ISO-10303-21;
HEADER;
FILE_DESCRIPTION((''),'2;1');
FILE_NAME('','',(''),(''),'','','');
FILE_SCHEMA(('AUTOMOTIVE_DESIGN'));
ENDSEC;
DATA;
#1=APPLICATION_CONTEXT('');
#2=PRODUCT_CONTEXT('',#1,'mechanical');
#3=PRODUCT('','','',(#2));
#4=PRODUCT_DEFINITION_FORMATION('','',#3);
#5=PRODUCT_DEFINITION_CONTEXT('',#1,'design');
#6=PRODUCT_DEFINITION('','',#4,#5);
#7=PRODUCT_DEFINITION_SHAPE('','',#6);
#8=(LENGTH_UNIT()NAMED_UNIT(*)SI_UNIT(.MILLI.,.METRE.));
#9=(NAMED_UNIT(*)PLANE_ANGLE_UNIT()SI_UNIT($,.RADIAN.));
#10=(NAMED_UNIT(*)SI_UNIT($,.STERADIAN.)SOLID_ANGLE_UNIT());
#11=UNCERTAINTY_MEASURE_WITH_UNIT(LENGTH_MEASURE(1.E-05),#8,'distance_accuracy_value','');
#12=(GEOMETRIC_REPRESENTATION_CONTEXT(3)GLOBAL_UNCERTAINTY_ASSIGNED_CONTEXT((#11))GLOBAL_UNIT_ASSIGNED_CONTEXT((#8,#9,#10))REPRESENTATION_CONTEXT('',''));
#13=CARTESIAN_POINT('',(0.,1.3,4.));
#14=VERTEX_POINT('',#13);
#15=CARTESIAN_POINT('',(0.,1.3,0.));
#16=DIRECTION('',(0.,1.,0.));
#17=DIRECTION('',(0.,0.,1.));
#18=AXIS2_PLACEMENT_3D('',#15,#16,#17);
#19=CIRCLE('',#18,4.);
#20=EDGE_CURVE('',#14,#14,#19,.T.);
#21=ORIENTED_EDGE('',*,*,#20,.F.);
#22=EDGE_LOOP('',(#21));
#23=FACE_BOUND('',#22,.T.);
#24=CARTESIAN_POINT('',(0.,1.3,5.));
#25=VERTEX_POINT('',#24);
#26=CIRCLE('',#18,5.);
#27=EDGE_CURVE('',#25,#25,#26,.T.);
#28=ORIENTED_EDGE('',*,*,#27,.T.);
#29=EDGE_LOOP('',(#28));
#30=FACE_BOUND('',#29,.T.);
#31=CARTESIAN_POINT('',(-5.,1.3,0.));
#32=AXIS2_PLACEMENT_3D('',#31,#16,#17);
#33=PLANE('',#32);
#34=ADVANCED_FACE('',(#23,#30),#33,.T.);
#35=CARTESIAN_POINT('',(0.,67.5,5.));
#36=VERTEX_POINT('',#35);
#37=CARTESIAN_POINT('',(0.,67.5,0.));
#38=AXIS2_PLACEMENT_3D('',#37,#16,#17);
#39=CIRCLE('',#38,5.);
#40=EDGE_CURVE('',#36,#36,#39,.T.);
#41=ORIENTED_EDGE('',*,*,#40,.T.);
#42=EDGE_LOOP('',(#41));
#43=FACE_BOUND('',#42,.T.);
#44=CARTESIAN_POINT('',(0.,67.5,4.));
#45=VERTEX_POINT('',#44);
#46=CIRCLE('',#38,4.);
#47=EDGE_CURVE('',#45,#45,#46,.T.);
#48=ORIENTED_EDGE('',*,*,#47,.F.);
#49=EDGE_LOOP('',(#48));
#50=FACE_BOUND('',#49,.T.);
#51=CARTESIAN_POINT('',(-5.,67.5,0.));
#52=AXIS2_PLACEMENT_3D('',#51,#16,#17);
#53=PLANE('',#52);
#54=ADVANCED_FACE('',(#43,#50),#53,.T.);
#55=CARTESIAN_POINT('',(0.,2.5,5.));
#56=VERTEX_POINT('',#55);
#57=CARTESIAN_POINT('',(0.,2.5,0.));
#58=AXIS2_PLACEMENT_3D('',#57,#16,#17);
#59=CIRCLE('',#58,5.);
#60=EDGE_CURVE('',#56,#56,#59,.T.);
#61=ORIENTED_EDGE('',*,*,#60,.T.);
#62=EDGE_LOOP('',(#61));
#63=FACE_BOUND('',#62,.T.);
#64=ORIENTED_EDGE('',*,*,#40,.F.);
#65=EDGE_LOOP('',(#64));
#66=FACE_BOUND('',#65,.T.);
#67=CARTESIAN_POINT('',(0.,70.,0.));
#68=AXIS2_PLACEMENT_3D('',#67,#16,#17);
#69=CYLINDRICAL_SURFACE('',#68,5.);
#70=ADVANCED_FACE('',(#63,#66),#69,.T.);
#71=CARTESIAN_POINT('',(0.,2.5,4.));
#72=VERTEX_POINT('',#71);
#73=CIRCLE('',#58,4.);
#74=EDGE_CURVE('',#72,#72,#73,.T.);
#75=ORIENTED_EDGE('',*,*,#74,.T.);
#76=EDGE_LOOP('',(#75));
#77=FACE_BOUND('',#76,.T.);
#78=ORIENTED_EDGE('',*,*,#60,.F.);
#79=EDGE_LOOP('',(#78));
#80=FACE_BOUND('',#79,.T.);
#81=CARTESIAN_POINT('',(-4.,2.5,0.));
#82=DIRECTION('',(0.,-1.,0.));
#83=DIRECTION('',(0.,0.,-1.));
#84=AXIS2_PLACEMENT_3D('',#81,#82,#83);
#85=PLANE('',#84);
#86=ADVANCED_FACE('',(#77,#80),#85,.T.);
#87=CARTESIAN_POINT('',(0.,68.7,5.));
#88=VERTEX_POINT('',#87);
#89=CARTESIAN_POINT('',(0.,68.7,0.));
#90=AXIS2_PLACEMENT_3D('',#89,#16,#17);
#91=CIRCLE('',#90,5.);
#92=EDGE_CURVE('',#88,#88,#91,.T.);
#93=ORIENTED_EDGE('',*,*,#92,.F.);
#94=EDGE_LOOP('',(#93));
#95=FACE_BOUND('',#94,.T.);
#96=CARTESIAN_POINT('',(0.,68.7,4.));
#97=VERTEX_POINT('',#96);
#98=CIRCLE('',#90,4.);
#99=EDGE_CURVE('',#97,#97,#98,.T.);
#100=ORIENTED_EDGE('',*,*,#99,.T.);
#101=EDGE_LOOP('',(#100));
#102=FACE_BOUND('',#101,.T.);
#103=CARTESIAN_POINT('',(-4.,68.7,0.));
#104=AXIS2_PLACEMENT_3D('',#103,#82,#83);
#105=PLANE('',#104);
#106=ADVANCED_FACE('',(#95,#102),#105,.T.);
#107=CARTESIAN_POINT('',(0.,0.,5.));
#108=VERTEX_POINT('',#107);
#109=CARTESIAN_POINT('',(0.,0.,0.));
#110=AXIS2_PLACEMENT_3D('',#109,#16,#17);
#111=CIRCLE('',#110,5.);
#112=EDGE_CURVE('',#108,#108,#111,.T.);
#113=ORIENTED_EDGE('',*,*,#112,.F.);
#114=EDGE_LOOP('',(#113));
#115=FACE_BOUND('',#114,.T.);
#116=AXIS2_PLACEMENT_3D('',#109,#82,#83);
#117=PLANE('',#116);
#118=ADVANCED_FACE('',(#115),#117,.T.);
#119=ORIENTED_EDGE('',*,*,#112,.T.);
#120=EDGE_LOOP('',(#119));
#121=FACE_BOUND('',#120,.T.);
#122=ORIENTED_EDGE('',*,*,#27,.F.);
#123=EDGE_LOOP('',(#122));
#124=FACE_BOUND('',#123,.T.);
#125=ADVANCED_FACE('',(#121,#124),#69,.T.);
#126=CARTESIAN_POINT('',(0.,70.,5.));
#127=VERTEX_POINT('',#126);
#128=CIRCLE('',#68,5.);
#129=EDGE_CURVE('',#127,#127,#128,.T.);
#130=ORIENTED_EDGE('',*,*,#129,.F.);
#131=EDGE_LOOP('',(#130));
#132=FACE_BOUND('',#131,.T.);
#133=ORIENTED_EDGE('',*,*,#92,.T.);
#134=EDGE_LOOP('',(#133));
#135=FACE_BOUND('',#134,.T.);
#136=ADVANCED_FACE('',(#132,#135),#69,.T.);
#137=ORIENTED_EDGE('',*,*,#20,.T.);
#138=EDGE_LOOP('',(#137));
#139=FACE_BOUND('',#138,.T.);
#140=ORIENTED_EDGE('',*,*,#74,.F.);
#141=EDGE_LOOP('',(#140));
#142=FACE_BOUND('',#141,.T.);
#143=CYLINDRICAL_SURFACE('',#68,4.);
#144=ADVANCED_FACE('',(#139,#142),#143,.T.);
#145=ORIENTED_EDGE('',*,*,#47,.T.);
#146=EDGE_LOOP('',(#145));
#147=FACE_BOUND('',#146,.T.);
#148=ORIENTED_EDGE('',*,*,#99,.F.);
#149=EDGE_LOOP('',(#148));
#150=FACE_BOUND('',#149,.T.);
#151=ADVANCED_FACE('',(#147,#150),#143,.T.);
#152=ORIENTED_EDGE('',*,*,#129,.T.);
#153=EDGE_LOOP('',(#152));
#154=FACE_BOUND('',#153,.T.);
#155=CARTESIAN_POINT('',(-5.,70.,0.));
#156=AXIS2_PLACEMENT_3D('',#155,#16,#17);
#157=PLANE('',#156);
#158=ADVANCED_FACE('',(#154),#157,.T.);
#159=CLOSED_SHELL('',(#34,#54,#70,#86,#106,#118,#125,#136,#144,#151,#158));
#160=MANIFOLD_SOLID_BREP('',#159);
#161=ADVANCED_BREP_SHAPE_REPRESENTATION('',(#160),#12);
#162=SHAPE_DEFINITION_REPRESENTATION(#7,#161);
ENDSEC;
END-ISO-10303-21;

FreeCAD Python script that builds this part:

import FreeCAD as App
import Part
import Sketcher
Q = App.Units.Quantity

doc = App.newDocument("Part")
params = doc.addObject("Spreadsheet::Sheet", "Params")
for row, (alias, value) in enumerate([
    ("sketch1_width", "5 mm"),
    ("sketch1_width2", "1 mm"),
    ("sketch1_height", "70 mm"),
    ("sketch1_height2", "65 mm"),
    ("sketch1_height3", "1.3 mm"),
    ("revolution_angle", "360 deg"),
], start=1):
    params.set(f"A{row}", alias)
    params.set(f"B{row}", "=" + value)
    params.setAlias(f"B{row}", alias)

body = doc.addObject("PartDesign::Body", "Body")

# Sketch on XY plane
sketch1 = body.newObject("Sketcher::SketchObject", "Sketch")
sketch1.AttachmentSupport = (doc.getObject("XY_Plane"), [""])
sketch1.MapMode = "FlatFace"
sketch1.addGeometry(Part.LineSegment(App.Vector(-5, 0, 0), App.Vector(0, 0, 0)), False)
sketch1.addGeometry(Part.LineSegment(App.Vector(0, 0, 0), App.Vector(0, 70, 0)), False)
sketch1.addGeometry(Part.LineSegment(App.Vector(0, 70, 0), App.Vector(-5, 70, 0)), False)
sketch1.addGeometry(Part.LineSegment(App.Vector(-5, 70, 0), App.Vector(-5, 68.7, 0)), False)
sketch1.addGeometry(Part.LineSegment(App.Vector(-5, 68.7, 0), App.Vector(-4, 68.7, 0)), False)
sketch1.addGeometry(Part.LineSegment(App.Vector(-4, 68.7, 0), App.Vector(-4, 67.5, 0)), False)
sketch1.addGeometry(Part.LineSegment(App.Vector(-4, 67.5, 0), App.Vector(-5, 67.5, 0)), False)
sketch1.addGeometry(Part.LineSegment(App.Vector(-5, 67.5, 0), App.Vector(-5, 2.5, 0)), False)
sketch1.addGeometry(Part.LineSegment(App.Vector(-5, 2.5, 0), App.Vector(-4, 2.5, 0)), False)
sketch1.addGeometry(Part.LineSegment(App.Vector(-4, 2.5, 0), App.Vector(-4, 1.3, 0)), False)
sketch1.addGeometry(Part.LineSegment(App.Vector(-4, 1.3, 0), App.Vector(-5, 1.3, 0)), False)
sketch1.addGeometry(Part.LineSegment(App.Vector(-5, 1.3, 0), App.Vector(-5, 0, 0)), False)
sketch1.addConstraint(Sketcher.Constraint("Coincident", 0, 2, 1, 1))
sketch1.addConstraint(Sketcher.Constraint("Coincident", 1, 2, 2, 1))
sketch1.addConstraint(Sketcher.Constraint("Coincident", 2, 2, 3, 1))
sketch1.addConstraint(Sketcher.Constraint("Coincident", 3, 2, 4, 1))
sketch1.addConstraint(Sketcher.Constraint("Coincident", 4, 2, 5, 1))
sketch1.addConstraint(Sketcher.Constraint("Coincident", 5, 2, 6, 1))
sketch1.addConstraint(Sketcher.Constraint("Coincident", 6, 2, 7, 1))
sketch1.addConstraint(Sketcher.Constraint("Coincident", 7, 2, 8, 1))
sketch1.addConstraint(Sketcher.Constraint("Coincident", 8, 2, 9, 1))
sketch1.addConstraint(Sketcher.Constraint("Coincident", 9, 2, 10, 1))
sketch1.addConstraint(Sketcher.Constraint("Coincident", 10, 2, 11, 1))
sketch1.addConstraint(Sketcher.Constraint("Coincident", 11, 2, 0, 1))
sketch1.addConstraint(Sketcher.Constraint("Horizontal", 0))
sketch1.addConstraint(Sketcher.Constraint("Vertical", 1))
sketch1.addConstraint(Sketcher.Constraint("Horizontal", 2))
sketch1.addConstraint(Sketcher.Constraint("Vertical", 3))
sketch1.addConstraint(Sketcher.Constraint("Horizontal", 4))
sketch1.addConstraint(Sketcher.Constraint("Vertical", 5))
sketch1.addConstraint(Sketcher.Constraint("Horizontal", 6))
sketch1.addConstraint(Sketcher.Constraint("Vertical", 7))
sketch1.addConstraint(Sketcher.Constraint("Horizontal", 8))
sketch1.addConstraint(Sketcher.Constraint("Vertical", 9))
sketch1.addConstraint(Sketcher.Constraint("Horizontal", 10))
sketch1.addConstraint(Sketcher.Constraint("Vertical", 11))
sketch1.addConstraint(Sketcher.Constraint("Coincident", 0, 2, -1, 1))
sketch1.addConstraint(Sketcher.Constraint("Vertical", 3, 2, 6, 2))
sketch1.addConstraint(Sketcher.Constraint("Vertical", 5, 2, 8, 2))
sketch1.addConstraint(Sketcher.Constraint("Vertical", 7, 2, 10, 2))
sketch1.addConstraint(Sketcher.Constraint("Equal", 5, 9))
sketch1.addConstraint(Sketcher.Constraint("Equal", 3, 11))
sketch1.addConstraint(Sketcher.Constraint("DistanceX", 0, 1, 0, 2, Q("5 mm")))
sketch1.addConstraint(Sketcher.Constraint("DistanceX", 4, 1, 4, 2, Q("1 mm")))
sketch1.addConstraint(Sketcher.Constraint("DistanceY", 1, 1, 1, 2, Q("70 mm")))
sketch1.addConstraint(Sketcher.Constraint("DistanceY", 7, 2, 7, 1, Q("65 mm")))
sketch1.addConstraint(Sketcher.Constraint("DistanceY", 3, 2, 3, 1, Q("1.3 mm")))
sketch1.setExpression("Constraints[30]", "Params.sketch1_width")
sketch1.setExpression("Constraints[31]", "Params.sketch1_width2")
sketch1.setExpression("Constraints[32]", "Params.sketch1_height")
sketch1.setExpression("Constraints[33]", "Params.sketch1_height2")
sketch1.setExpression("Constraints[34]", "Params.sketch1_height3")
revolution = body.newObject("PartDesign::Revolution", "Revolution")
revolution.Profile = sketch1
revolution.ReferenceAxis = (sketch1, ["V_Axis"])
revolution.setExpression("Angle", "Params.revolution_angle")

doc.recompute()
